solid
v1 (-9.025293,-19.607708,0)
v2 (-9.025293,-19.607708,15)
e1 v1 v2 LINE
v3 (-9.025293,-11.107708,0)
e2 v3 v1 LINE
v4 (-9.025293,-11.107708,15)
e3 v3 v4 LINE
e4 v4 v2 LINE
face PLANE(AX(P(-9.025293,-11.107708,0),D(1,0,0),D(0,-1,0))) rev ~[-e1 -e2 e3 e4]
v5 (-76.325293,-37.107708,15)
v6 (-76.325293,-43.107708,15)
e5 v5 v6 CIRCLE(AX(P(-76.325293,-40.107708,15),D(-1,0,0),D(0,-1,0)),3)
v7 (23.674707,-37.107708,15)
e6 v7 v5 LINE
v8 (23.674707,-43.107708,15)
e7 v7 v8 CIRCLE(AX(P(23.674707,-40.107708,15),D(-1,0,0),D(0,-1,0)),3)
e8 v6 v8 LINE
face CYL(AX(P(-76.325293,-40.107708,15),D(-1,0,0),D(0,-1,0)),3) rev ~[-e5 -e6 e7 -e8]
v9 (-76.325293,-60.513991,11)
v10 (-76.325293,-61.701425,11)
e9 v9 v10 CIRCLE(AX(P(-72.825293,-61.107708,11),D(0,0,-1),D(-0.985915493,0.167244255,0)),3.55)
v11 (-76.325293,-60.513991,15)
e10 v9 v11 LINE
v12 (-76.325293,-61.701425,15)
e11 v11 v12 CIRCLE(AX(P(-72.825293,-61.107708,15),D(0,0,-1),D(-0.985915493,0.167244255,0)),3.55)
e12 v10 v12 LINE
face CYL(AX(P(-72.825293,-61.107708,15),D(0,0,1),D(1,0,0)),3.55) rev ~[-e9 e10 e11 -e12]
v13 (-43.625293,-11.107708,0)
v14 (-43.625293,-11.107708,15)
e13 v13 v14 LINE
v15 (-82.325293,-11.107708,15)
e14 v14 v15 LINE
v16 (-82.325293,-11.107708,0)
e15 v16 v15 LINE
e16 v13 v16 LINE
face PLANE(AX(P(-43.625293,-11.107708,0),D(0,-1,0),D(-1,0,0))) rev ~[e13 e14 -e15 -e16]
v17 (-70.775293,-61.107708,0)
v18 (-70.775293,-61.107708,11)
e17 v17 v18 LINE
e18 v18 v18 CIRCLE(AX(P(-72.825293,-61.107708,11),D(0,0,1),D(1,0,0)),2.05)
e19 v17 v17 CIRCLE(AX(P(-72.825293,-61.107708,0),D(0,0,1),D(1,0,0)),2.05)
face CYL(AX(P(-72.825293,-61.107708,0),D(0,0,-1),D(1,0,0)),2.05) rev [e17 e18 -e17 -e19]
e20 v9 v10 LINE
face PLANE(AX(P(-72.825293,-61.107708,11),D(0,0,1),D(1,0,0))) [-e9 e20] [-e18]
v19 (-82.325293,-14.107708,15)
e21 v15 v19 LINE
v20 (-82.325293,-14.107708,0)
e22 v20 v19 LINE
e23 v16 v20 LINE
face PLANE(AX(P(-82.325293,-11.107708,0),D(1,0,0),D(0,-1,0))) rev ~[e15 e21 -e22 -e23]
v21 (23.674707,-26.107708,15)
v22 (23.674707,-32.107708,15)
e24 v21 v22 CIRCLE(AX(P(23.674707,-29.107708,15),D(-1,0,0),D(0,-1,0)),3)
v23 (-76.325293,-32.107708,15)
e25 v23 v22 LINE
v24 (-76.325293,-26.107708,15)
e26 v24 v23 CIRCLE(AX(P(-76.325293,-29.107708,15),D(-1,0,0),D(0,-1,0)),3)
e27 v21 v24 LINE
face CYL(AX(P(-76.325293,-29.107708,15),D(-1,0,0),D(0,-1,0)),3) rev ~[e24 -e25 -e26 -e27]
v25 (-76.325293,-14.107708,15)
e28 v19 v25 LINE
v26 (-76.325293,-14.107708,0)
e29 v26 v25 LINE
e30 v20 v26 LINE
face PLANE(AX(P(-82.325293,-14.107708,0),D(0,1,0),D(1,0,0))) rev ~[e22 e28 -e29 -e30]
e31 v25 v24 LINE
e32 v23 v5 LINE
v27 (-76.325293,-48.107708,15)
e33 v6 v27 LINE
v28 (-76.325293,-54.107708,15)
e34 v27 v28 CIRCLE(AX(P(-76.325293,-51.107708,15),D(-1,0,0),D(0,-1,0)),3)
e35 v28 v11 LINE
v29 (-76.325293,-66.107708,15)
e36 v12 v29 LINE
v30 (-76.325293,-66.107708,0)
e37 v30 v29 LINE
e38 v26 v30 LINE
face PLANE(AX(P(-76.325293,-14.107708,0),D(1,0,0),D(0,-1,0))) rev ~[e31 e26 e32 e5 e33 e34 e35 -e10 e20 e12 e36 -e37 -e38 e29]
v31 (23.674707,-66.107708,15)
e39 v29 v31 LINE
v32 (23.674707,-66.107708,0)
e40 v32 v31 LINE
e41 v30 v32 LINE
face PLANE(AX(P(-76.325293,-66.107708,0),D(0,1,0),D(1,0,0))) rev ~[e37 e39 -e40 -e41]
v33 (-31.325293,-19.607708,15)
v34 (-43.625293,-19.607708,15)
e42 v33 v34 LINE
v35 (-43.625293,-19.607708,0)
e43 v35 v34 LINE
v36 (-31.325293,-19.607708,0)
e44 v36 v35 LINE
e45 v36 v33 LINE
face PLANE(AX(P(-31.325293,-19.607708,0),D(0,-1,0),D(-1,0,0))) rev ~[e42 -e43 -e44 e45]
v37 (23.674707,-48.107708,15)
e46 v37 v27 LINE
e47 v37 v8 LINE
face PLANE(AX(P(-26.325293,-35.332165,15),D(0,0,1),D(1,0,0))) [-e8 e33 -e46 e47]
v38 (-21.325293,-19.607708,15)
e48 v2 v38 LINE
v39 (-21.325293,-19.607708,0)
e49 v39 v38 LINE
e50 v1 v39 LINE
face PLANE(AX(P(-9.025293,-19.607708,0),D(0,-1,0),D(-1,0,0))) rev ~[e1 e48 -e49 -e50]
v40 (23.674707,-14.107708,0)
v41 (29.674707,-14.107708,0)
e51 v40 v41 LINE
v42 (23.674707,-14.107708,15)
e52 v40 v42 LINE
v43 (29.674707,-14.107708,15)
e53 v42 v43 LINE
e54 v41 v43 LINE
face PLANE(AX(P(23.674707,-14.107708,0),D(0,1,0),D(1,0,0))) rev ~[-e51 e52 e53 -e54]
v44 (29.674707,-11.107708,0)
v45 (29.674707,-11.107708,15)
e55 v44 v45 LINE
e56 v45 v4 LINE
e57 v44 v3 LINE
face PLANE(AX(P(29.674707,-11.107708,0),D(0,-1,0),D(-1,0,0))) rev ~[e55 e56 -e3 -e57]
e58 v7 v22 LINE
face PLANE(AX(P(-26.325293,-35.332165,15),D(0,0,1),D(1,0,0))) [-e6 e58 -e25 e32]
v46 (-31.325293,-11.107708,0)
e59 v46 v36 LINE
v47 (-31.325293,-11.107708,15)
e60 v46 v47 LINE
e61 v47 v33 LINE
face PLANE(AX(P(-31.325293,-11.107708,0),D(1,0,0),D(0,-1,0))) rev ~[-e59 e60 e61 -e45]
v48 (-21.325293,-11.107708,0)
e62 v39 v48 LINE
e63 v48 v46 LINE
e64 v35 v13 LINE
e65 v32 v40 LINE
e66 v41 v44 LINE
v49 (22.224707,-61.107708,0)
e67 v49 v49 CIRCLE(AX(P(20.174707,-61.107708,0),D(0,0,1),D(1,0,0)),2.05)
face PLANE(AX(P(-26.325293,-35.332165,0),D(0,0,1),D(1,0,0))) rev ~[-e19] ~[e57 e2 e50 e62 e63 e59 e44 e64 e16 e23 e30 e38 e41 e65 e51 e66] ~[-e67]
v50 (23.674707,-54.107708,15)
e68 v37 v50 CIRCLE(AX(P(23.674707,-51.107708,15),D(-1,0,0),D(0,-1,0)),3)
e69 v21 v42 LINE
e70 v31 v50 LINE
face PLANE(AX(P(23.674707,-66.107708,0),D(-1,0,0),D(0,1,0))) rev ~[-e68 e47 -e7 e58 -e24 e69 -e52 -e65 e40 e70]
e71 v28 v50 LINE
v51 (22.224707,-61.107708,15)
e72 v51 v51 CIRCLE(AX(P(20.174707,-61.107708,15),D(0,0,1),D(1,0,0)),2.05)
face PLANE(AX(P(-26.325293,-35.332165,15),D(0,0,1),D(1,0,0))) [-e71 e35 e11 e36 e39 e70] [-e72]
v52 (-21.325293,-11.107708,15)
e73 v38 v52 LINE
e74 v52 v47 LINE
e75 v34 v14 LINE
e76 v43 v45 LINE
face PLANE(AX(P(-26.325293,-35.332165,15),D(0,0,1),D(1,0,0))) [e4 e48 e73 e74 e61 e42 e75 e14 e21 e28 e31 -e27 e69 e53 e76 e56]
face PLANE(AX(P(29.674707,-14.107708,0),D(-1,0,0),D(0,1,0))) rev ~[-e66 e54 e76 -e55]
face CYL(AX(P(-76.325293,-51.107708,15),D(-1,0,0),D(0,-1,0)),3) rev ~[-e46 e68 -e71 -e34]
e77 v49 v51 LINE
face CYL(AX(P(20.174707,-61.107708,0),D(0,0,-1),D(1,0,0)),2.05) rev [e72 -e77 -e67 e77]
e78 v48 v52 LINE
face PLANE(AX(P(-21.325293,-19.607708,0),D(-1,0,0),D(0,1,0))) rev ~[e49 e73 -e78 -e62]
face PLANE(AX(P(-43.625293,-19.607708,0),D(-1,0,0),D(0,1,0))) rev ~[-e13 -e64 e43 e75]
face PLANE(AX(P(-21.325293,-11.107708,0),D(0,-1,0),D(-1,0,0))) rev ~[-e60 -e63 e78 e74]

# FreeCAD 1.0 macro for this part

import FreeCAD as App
import Part
import Sketcher
from FreeCAD import Vector


def add_polygon(sketch, points):
    """Adds a closed chain of lines whose ends are joined by coincident constraints."""
    first, n = sketch.GeometryCount, len(points)
    for a, b in zip(points, points[1:] + points[:1]):
        sketch.addGeometry(Part.LineSegment(App.Vector(*a, 0), App.Vector(*b, 0)), False)
    for i in range(n):
        sketch.addConstraint(Sketcher.Constraint("Coincident", first + i, 2, first + (i + 1) % n, 1))

doc = App.newDocument("Part")
params = doc.addObject("Spreadsheet::Sheet", "Params")
for row, (alias, value) in enumerate([
    ("sketch1_diameter", "4.1 mm"),
    ("sketch1_width", "6 mm"),
    ("sketch1_width2", "100 mm"),
    ("sketch1_width3", "10 mm"),
    ("sketch1_height", "3 mm"),
    ("pad1_length", "15 mm"),
    ("sketch2_diameter", "6 mm"),
    ("pocket1_length", "121 mm"),
    ("sketch3_diameter", "7.1 mm"),
    ("sketch3_diameter2", "4.1 mm"),
    ("pocket2_length", "4 mm"),
], start=1):
    params.set(f"A{row}", alias)
    params.set(f"B{row}", "=" + value)
    params.setAlias(f"B{row}", alias)

body = doc.addObject("PartDesign::Body", "Body")

# Sketch on XY plane
sketch1 = body.newObject("Sketcher::SketchObject", "Sketch")
sketch1.AttachmentSupport = (doc.getObject("XY_Plane"), [""])
sketch1.MapMode = "FlatFace"
add_polygon(sketch1, [(-43.6, -11.1), (-82.3, -11.1), (-82.3, -14.1), (-76.3, -14.1), (-76.3, -66.1), (23.7, -66.1), (23.7, -14.1), (29.7, -14.1), (29.7, -11.1), (-9, -11.1), (-9, -19.6), (-21.3, -19.6), (-21.3, -11.1), (-31.3, -11.1), (-31.3, -19.6), (-43.6, -19.6)])  # lines 0-15
sketch1.addGeometry(Part.Circle(Vector(-72.8, -61.1, 0), Vector(0, 0, 1), 2), False)  # 16
sketch1.addGeometry(Part.Circle(Vector(20.2, -61.1, 0), Vector(0, 0, 1), 2), False)  # 17
sketch1.addConstraint([
    Sketcher.Constraint("Horizontal", 0),
    Sketcher.Constraint("Vertical", 1),
    Sketcher.Constraint("Horizontal", 2),
    Sketcher.Constraint("Vertical", 3),
    Sketcher.Constraint("Horizontal", 4),
    Sketcher.Constraint("Vertical", 5),
    Sketcher.Constraint("Horizontal", 6),
    Sketcher.Constraint("Vertical", 7),
    Sketcher.Constraint("Horizontal", 8),
    Sketcher.Constraint("Vertical", 9),
    Sketcher.Constraint("Horizontal", 10),
    Sketcher.Constraint("Vertical", 11),
    Sketcher.Constraint("Horizontal", 12),
    Sketcher.Constraint("Vertical", 13),
    Sketcher.Constraint("Horizontal", 14),
    Sketcher.Constraint("Vertical", 15),
    Sketcher.Constraint("Equal", 16, 17),
    Sketcher.Constraint("Horizontal", 16, 3, 17, 3),
    Sketcher.Constraint("Horizontal", 2, 2, 5, 2),
    Sketcher.Constraint("Horizontal", 0, 2, 7, 2),
    Sketcher.Constraint("Horizontal", 8, 2, 11, 2),
    Sketcher.Constraint("Horizontal", 10, 2, 13, 2),
    Sketcher.Constraint("Equal", 2, 6),
    Sketcher.Constraint("Equal", 0, 8),
    Sketcher.Constraint("Equal", 10, 14),
    Sketcher.Constraint("Diameter", 16, 4.1),
    Sketcher.Constraint("DistanceX", 2, 1, 2, 2, 6.0),
    Sketcher.Constraint("DistanceX", 4, 1, 4, 2, 100.0),
    Sketcher.Constraint("DistanceX", 12, 2, 12, 1, 10.0),
    Sketcher.Constraint("DistanceY", 1, 2, 1, 1, 3.0),
    Sketcher.Constraint("DistanceY", 3, 2, 3, 1, 52.0),
    Sketcher.Constraint("DistanceX", 0, 2, 0, 1, 38.7),
    Sketcher.Constraint("DistanceY", 9, 2, 9, 1, 8.5),
    Sketcher.Constraint("DistanceX", 16, 3, 17, 3, 93.0),
    Sketcher.Constraint("DistanceY", 16, 3, 0, 2, 50.0),
    Sketcher.Constraint("DistanceX", 0, 2, 16, 3, 9.5),
    Sketcher.Constraint("DistanceY", 16, 3, -1, 1, 61.107708),
    Sketcher.Constraint("DistanceX", 16, 3, -1, 1, 72.825293),
])
sketch1.setExpression("Constraints[41]", "Params.sketch1_diameter")
sketch1.setExpression("Constraints[42]", "Params.sketch1_width")
sketch1.setExpression("Constraints[43]", "Params.sketch1_width2")
sketch1.setExpression("Constraints[44]", "Params.sketch1_width3")
sketch1.setExpression("Constraints[45]", "Params.sketch1_height")
pad1 = body.newObject("PartDesign::Pad", "Pad")
pad1.Profile = sketch1
pad1.setExpression("Length", "Params.pad1_length")

# Sketch on YZ plane
sketch2 = body.newObject("Sketcher::SketchObject", "Sketch001")
sketch2.AttachmentSupport = (doc.getObject("YZ_Plane"), [""])
sketch2.MapMode = "FlatFace"
sketch2.AttachmentOffset = App.Placement(Vector(0, 0, -76.325293), App.Rotation())
sketch2.addGeometry([
    Part.Circle(Vector(-29.1, 15, 0), Vector(0, 0, 1), 3),
    Part.Circle(Vector(-51.1, 15, 0), Vector(0, 0, 1), 3),
    Part.Circle(Vector(-40.1, 15, 0), Vector(0, 0, 1), 3),
], False)
sketch2.addConstraint([
    Sketcher.Constraint("Equal", 0, 1),
    Sketcher.Constraint("Equal", 1, 2),
    Sketcher.Constraint("Horizontal", 0, 3, 1, 3),
    Sketcher.Constraint("Horizontal", 1, 3, 2, 3),
    Sketcher.Constraint("Diameter", 0, 6.0),
    Sketcher.Constraint("DistanceY", -1, 1, 0, 3, 15.0),
    Sketcher.Constraint("DistanceX", 1, 3, 0, 3, 22.0),
    Sketcher.Constraint("DistanceX", 1, 3, 2, 3, 11.0),
    Sketcher.Constraint("DistanceX", 1, 3, -1, 1, 51.107708),
])
sketch2.setExpression("Constraints[4]", "Params.sketch2_diameter")
pocket1 = body.newObject("PartDesign::Pocket", "Pocket")
pocket1.Profile = sketch2
pocket1.setExpression("Length", "Params.pocket1_length")
pocket1.Reversed = True

# Sketch on XY plane
sketch3 = body.newObject("Sketcher::SketchObject", "Sketch002")
sketch3.AttachmentSupport = (doc.getObject("XY_Plane"), [""])
sketch3.MapMode = "FlatFace"
sketch3.AttachmentOffset = App.Placement(Vector(0, 0, 15), App.Rotation())
sketch3.addGeometry([
    Part.Circle(Vector(-72.8, -61.1, 0), Vector(0, 0, 1), 3.5),
    Part.Circle(Vector(-72.8, -61.1, 0), Vector(0, 0, 1), 2),
], False)
sketch3.addConstraint([
    Sketcher.Constraint("Coincident", 1, 3, 0, 3),
    Sketcher.Constraint("Diameter", 0, 7.1),
    Sketcher.Constraint("Diameter", 1, 4.1),
    Sketcher.Constraint("DistanceY", 0, 3, -1, 1, 61.107708),
    Sketcher.Constraint("DistanceX", 0, 3, -1, 1, 72.825293),
])
sketch3.setExpression("Constraints[1]", "Params.sketch3_diameter")
sketch3.setExpression("Constraints[2]", "Params.sketch3_diameter2")
pocket2 = body.newObject("PartDesign::Pocket", "Pocket001")
pocket2.Profile = sketch3
pocket2.setExpression("Length", "Params.pocket2_length")

doc.recompute()
